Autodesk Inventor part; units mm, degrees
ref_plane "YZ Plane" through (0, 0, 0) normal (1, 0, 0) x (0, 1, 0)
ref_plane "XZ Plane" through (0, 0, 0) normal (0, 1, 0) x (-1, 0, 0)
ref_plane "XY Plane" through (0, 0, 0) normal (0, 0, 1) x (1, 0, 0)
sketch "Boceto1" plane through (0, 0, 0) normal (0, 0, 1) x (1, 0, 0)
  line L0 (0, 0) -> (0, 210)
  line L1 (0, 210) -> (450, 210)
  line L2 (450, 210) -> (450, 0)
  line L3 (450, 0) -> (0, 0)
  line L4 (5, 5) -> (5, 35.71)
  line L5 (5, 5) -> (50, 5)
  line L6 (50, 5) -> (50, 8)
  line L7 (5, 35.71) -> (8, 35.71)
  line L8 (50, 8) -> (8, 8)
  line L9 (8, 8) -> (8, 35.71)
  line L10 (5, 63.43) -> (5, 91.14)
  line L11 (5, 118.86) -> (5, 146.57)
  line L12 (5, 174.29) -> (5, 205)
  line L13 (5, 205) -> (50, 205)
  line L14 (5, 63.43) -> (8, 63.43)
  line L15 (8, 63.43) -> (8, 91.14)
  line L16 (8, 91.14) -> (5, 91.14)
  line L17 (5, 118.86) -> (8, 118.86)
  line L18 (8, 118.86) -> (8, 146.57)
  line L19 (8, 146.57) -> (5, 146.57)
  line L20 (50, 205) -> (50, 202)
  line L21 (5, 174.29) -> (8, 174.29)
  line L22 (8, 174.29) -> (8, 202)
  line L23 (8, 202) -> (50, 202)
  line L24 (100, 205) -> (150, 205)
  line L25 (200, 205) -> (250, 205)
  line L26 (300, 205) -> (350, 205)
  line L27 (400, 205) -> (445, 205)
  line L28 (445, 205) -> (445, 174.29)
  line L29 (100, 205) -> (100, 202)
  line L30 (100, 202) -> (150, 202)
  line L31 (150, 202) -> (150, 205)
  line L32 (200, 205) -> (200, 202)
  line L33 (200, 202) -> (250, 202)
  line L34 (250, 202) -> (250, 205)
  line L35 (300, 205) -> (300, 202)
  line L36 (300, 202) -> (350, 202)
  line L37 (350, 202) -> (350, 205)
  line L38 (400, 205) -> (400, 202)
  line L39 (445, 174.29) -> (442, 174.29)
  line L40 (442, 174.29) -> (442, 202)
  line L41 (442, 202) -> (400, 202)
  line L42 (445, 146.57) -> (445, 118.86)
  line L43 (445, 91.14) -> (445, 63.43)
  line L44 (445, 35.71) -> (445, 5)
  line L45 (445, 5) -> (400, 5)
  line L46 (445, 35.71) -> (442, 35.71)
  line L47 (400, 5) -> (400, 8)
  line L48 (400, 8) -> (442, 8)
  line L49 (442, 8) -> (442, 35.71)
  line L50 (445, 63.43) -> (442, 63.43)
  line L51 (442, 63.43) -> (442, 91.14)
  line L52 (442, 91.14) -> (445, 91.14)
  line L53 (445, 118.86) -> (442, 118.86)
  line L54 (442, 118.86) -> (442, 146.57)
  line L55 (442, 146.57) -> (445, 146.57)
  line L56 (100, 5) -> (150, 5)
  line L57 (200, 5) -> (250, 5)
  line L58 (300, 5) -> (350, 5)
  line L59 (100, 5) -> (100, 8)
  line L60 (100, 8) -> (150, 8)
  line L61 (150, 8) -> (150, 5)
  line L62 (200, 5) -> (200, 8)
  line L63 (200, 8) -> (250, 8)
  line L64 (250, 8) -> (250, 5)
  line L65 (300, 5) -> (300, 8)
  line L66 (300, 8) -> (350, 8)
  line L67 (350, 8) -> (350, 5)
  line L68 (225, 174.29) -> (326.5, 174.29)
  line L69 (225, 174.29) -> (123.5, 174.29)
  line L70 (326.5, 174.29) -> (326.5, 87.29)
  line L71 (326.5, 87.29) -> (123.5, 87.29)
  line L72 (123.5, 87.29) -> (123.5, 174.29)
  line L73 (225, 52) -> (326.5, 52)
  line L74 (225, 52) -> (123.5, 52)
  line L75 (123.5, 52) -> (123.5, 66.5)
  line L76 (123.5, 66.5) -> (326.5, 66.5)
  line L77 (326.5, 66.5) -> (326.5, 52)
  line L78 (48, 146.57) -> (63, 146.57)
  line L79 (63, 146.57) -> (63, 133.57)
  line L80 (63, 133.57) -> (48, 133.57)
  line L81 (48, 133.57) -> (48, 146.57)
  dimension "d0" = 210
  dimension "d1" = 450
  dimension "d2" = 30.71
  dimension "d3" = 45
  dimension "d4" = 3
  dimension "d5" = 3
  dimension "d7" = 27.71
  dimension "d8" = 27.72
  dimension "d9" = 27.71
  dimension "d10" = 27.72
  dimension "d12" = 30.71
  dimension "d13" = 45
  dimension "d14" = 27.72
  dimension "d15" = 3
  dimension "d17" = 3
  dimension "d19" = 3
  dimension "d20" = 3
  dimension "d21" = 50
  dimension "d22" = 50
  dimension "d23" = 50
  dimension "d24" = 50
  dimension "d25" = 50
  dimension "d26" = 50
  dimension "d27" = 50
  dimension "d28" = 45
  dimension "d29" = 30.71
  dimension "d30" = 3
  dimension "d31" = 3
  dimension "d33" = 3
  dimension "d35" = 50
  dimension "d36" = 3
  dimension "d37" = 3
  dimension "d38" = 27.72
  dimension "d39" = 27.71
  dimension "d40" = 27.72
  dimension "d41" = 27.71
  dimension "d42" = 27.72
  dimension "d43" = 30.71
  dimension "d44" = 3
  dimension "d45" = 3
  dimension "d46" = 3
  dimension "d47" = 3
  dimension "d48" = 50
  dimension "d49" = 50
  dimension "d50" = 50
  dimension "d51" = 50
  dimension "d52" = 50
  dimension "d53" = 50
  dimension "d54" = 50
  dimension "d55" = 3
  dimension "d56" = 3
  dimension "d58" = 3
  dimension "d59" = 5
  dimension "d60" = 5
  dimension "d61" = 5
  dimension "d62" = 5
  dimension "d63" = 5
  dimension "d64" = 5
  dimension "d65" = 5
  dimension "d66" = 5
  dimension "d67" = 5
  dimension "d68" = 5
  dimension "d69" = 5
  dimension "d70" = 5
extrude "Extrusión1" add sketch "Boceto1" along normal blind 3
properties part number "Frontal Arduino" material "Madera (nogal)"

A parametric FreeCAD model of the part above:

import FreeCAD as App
import Part
import Sketcher

V = App.Vector


def add_polygon(sketch, points):
    """Adds a closed chain of lines whose ends are joined by coincident constraints."""
    first, n = sketch.GeometryCount, len(points)
    for a, b in zip(points, points[1:] + points[:1]):
        sketch.addGeometry(Part.LineSegment(App.Vector(*a, 0), App.Vector(*b, 0)), False)
    for i in range(n):
        sketch.addConstraint(Sketcher.Constraint("Coincident", first + i, 2, first + (i + 1) % n, 1))

doc = App.newDocument("Part")
body = doc.addObject("PartDesign::Body", "Body")

# Sketch on XY plane
sketch1 = doc.addObject("Sketcher::SketchObject", "Sketch")
body.addObject(sketch1)
sketch1.AttachmentSupport = (doc.XY_Plane, [""])
sketch1.MapMode = "FlatFace"
add_polygon(sketch1, [(0, 210), (0, 0), (450, 0), (450, 210)])  # lines 0-3
add_polygon(sketch1, [(50, 5), (5, 5), (5, 35.7), (8, 35.7), (8, 8), (50, 8)])  # lines 4-9
add_polygon(sketch1, [(150, 5), (100, 5), (100, 8), (150, 8)])  # lines 10-13
add_polygon(sketch1, [(8, 63.4), (5, 63.4), (5, 91.1), (8, 91.1)])  # lines 14-17
add_polygon(sketch1, [(250, 5), (200, 5), (200, 8), (250, 8)])  # lines 18-21
add_polygon(sketch1, [(350, 5), (300, 5), (300, 8), (350, 8)])  # lines 22-25
add_polygon(sketch1, [(442, 35.7), (445, 35.7), (445, 5), (400, 5), (400, 8), (442, 8)])  # lines 26-31
add_polygon(sketch1, [(326.5, 52), (123.5, 52), (123.5, 66.5), (326.5, 66.5)])  # lines 32-35
add_polygon(sketch1, [(442, 91.1), (445, 91.1), (445, 63.4), (442, 63.4)])  # lines 36-39
add_polygon(sketch1, [(8, 118.9), (5, 118.9), (5, 146.6), (8, 146.6)])  # lines 40-43
add_polygon(sketch1, [(48, 133.6), (48, 146.6), (63, 146.6), (63, 133.6)])  # lines 44-47
add_polygon(sketch1, [(8, 174.3), (5, 174.3), (5, 205), (50, 205), (50, 202), (8, 202)])  # lines 48-53
add_polygon(sketch1, [(100, 202), (100, 205), (150, 205), (150, 202)])  # lines 54-57
add_polygon(sketch1, [(123.5, 174.3), (326.5, 174.3), (326.5, 87.3), (123.5, 87.3)])  # lines 58-61
add_polygon(sketch1, [(442, 146.6), (445, 146.6), (445, 118.9), (442, 118.9)])  # lines 62-65
add_polygon(sketch1, [(200, 202), (200, 205), (250, 205), (250, 202)])  # lines 66-69
add_polygon(sketch1, [(300, 202), (300, 205), (350, 205), (350, 202)])  # lines 70-73
add_polygon(sketch1, [(400, 202), (400, 205), (445, 205), (445, 174.3), (442, 174.3), (442, 202)])  # lines 74-79
sketch1.addConstraint([
    Sketcher.Constraint("Vertical", 0),
    Sketcher.Constraint("Horizontal", 1),
    Sketcher.Constraint("Vertical", 2),
    Sketcher.Constraint("Horizontal", 3),
    Sketcher.Constraint("Horizontal", 4),
    Sketcher.Constraint("Vertical", 5),
    Sketcher.Constraint("Horizontal", 6),
    Sketcher.Constraint("Vertical", 7),
    Sketcher.Constraint("Horizontal", 8),
    Sketcher.Constraint("Vertical", 9),
    Sketcher.Constraint("Horizontal", 10),
    Sketcher.Constraint("Vertical", 11),
    Sketcher.Constraint("Horizontal", 12),
    Sketcher.Constraint("Vertical", 13),
    Sketcher.Constraint("Horizontal", 14),
    Sketcher.Constraint("Vertical", 15),
    Sketcher.Constraint("Horizontal", 16),
    Sketcher.Constraint("Vertical", 17),
    Sketcher.Constraint("Horizontal", 18),
    Sketcher.Constraint("Vertical", 19),
    Sketcher.Constraint("Horizontal", 20),
    Sketcher.Constraint("Vertical", 21),
    Sketcher.Constraint("Horizontal", 22),
    Sketcher.Constraint("Vertical", 23),
    Sketcher.Constraint("Horizontal", 24),
    Sketcher.Constraint("Vertical", 25),
    Sketcher.Constraint("Horizontal", 26),
    Sketcher.Constraint("Vertical", 27),
    Sketcher.Constraint("Horizontal", 28),
    Sketcher.Constraint("Vertical", 29),
    Sketcher.Constraint("Horizontal", 30),
    Sketcher.Constraint("Vertical", 31),
    Sketcher.Constraint("Horizontal", 32),
    Sketcher.Constraint("Vertical", 33),
    Sketcher.Constraint("Horizontal", 34),
    Sketcher.Constraint("Vertical", 35),
    Sketcher.Constraint("Horizontal", 36),
    Sketcher.Constraint("Vertical", 37),
    Sketcher.Constraint("Horizontal", 38),
    Sketcher.Constraint("Vertical", 39),
    Sketcher.Constraint("Horizontal", 40),
    Sketcher.Constraint("Vertical", 41),
    Sketcher.Constraint("Horizontal", 42),
    Sketcher.Constraint("Vertical", 43),
    Sketcher.Constraint("Vertical", 44),
    Sketcher.Constraint("Horizontal", 45),
    Sketcher.Constraint("Vertical", 46),
    Sketcher.Constraint("Horizontal", 47),
    Sketcher.Constraint("Horizontal", 48),
    Sketcher.Constraint("Vertical", 49),
    Sketcher.Constraint("Horizontal", 50),
    Sketcher.Constraint("Vertical", 51),
    Sketcher.Constraint("Horizontal", 52),
    Sketcher.Constraint("Vertical", 53),
    Sketcher.Constraint("Vertical", 54),
    Sketcher.Constraint("Horizontal", 55),
    Sketcher.Constraint("Vertical", 56),
    Sketcher.Constraint("Horizontal", 57),
    Sketcher.Constraint("Horizontal", 58),
    Sketcher.Constraint("Vertical", 59),
    Sketcher.Constraint("Horizontal", 60),
    Sketcher.Constraint("Vertical", 61),
    Sketcher.Constraint("Horizontal", 62),
    Sketcher.Constraint("Vertical", 63),
    Sketcher.Constraint("Horizontal", 64),
    Sketcher.Constraint("Vertical", 65),
    Sketcher.Constraint("Vertical", 66),
    Sketcher.Constraint("Horizontal", 67),
    Sketcher.Constraint("Vertical", 68),
    Sketcher.Constraint("Horizontal", 69),
    Sketcher.Constraint("Vertical", 70),
    Sketcher.Constraint("Horizontal", 71),
    Sketcher.Constraint("Vertical", 72),
    Sketcher.Constraint("Horizontal", 73),
    Sketcher.Constraint("Vertical", 74),
    Sketcher.Constraint("Horizontal", 75),
    Sketcher.Constraint("Vertical", 76),
    Sketcher.Constraint("Horizontal", 77),
    Sketcher.Constraint("Vertical", 78),
    Sketcher.Constraint("Horizontal", 79),
    Sketcher.Constraint("Coincident", 0, 2, -1, 1),
    Sketcher.Constraint("Horizontal", 9, 2, 10, 2),
    Sketcher.Constraint("Horizontal", 8, 2, 11, 2),
    Sketcher.Constraint("Horizontal", 13, 2, 18, 2),
    Sketcher.Constraint("Horizontal", 12, 2, 19, 2),
    Sketcher.Constraint("Horizontal", 21, 2, 22, 2),
    Sketcher.Constraint("Horizontal", 20, 2, 23, 2),
    Sketcher.Constraint("Horizontal", 6, 2, 26, 2),
    Sketcher.Constraint("Horizontal", 25, 2, 27, 2),
    Sketcher.Constraint("Horizontal", 24, 2, 29, 2),
    Sketcher.Constraint("Horizontal", 16, 2, 36, 2),
    Sketcher.Constraint("Horizontal", 17, 2, 37, 2),
    Sketcher.Constraint("Horizontal", 42, 2, 44, 2),
    Sketcher.Constraint("Horizontal", 50, 2, 54, 2),
    Sketcher.Constraint("Horizontal", 52, 2, 56, 2),
    Sketcher.Constraint("Horizontal", 53, 2, 58, 2),
    Sketcher.Constraint("Horizontal", 45, 2, 62, 2),
    Sketcher.Constraint("Horizontal", 43, 2, 63, 2),
    Sketcher.Constraint("Horizontal", 55, 2, 66, 2),
    Sketcher.Constraint("Horizontal", 57, 2, 68, 2),
    Sketcher.Constraint("Horizontal", 67, 2, 70, 2),
    Sketcher.Constraint("Horizontal", 69, 2, 72, 2),
    Sketcher.Constraint("Horizontal", 71, 2, 74, 2),
    Sketcher.Constraint("Horizontal", 61, 2, 76, 2),
    Sketcher.Constraint("Horizontal", 73, 2, 78, 2),
    Sketcher.Constraint("Vertical", 5, 2, 14, 2),
    Sketcher.Constraint("Vertical", 7, 2, 16, 2),
    Sketcher.Constraint("Vertical", 27, 2, 36, 2),
    Sketcher.Constraint("Vertical", 31, 2, 38, 2),
    Sketcher.Constraint("Vertical", 15, 2, 40, 2),
    Sketcher.Constraint("Vertical", 17, 2, 42, 2),
    Sketcher.Constraint("Vertical", 41, 2, 48, 2),
    Sketcher.Constraint("Vertical", 9, 2, 50, 2),
    Sketcher.Constraint("Vertical", 43, 2, 52, 2),
    Sketcher.Constraint("Vertical", 11, 2, 54, 2),
    Sketcher.Constraint("Vertical", 13, 2, 55, 2),
    Sketcher.Constraint("Vertical", 35, 2, 58, 2),
    Sketcher.Constraint("Vertical", 33, 2, 60, 2),
    Sketcher.Constraint("Vertical", 37, 2, 62, 2),
    Sketcher.Constraint("Vertical", 39, 2, 64, 2),
    Sketcher.Constraint("Vertical", 19, 2, 66, 2),
    Sketcher.Constraint("Vertical", 21, 2, 67, 2),
    Sketcher.Constraint("Vertical", 23, 2, 70, 2),
    Sketcher.Constraint("Vertical", 25, 2, 71, 2),
    Sketcher.Constraint("Vertical", 29, 2, 74, 2),
    Sketcher.Constraint("Vertical", 63, 2, 75, 2),
    Sketcher.Constraint("Vertical", 65, 2, 77, 2),
    Sketcher.Constraint("Equal", 12, 18),
    Sketcher.Constraint("Equal", 20, 22),
    Sketcher.Constraint("Equal", 16, 26),
    Sketcher.Constraint("Equal", 4, 28),
    Sketcher.Constraint("Equal", 77, 9),
    Sketcher.Constraint("Equal", 7, 15),
    Sketcher.Constraint("Equal", 39, 41),
    Sketcher.Constraint("Equal", 27, 49),
    Sketcher.Constraint("Equal", 29, 51),
    Sketcher.Constraint("DistanceX", 1, 1, 1, 2, 450.0),
    Sketcher.Constraint("DistanceX", 4, 2, 4, 1, 45.0),
    Sketcher.Constraint("DistanceX", 6, 1, 6, 2, 3.0),
    Sketcher.Constraint("DistanceX", 10, 2, 10, 1, 50.0),
    Sketcher.Constraint("DistanceY", 0, 2, 0, 1, 210.0),
    Sketcher.Constraint("DistanceX", -1, 1, 4, 2, 5.0),
    Sketcher.Constraint("DistanceY", -1, 1, 4, 2, 5.0),
    Sketcher.Constraint("DistanceY", 5, 1, 5, 2, 30.71),
    Sketcher.Constraint("DistanceX", 32, 2, 32, 1, 203.0),
    Sketcher.Constraint("DistanceX", 45, 1, 45, 2, 15.0),
    Sketcher.Constraint("DistanceY", 44, 1, 44, 2, 13.0),
    Sketcher.Constraint("DistanceY", 59, 2, 59, 1, 87.0),
    Sketcher.Constraint("DistanceY", 33, 1, 33, 2, 14.5),
    Sketcher.Constraint("DistanceX", -1, 1, 10, 2, 100.0),
    Sketcher.Constraint("DistanceX", -1, 1, 18, 2, 200.0),
    Sketcher.Constraint("DistanceX", -1, 1, 22, 2, 300.0),
    Sketcher.Constraint("DistanceX", -1, 1, 26, 2, 445.0),
    Sketcher.Constraint("DistanceY", -1, 1, 32, 2, 52.0),
    Sketcher.Constraint("DistanceX", -1, 1, 44, 2, 48.0),
    Sketcher.Constraint("DistanceY", -1, 1, 49, 2, 205.0),
    Sketcher.Constraint("DistanceX", -1, 1, 32, 2, 123.5),
    Sketcher.Constraint("DistanceY", -1, 1, 14, 2, 63.43),
    Sketcher.Constraint("DistanceY", -1, 1, 40, 2, 118.86),
])
pad1 = doc.addObject("PartDesign::Pad", "Pad")
body.addObject(pad1)
pad1.Profile = sketch1
pad1.Length = 3

doc.recompute()
